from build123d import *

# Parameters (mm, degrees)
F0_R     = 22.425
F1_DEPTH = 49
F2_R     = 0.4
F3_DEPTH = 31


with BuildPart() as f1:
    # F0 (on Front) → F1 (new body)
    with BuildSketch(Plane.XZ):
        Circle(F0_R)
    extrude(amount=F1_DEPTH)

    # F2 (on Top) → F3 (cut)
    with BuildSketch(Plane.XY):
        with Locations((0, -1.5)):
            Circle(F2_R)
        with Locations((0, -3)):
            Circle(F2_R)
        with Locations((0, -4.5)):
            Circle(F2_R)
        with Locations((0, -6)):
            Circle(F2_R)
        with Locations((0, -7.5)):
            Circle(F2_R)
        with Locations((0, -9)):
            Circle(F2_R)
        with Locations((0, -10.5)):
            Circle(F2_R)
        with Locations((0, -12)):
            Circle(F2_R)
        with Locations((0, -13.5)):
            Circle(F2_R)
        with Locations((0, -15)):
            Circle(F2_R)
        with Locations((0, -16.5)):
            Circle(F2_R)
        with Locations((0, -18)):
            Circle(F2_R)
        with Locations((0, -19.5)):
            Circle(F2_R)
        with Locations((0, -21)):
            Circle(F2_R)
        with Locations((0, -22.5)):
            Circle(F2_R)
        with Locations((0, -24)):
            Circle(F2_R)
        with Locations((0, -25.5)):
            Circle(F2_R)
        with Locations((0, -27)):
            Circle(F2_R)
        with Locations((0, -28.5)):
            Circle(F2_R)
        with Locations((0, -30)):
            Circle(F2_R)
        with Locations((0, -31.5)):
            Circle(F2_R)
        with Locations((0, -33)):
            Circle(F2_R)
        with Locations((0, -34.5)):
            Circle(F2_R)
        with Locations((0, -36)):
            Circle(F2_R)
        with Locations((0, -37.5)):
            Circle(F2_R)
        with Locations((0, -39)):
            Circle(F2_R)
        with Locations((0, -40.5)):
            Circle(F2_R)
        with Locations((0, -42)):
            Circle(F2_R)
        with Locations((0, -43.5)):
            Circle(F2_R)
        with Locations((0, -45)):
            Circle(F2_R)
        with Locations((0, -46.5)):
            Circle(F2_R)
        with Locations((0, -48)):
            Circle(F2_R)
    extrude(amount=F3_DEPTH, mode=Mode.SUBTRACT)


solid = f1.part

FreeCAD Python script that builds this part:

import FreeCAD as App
import Part
import Sketcher

doc = App.newDocument("Part")
body = doc.addObject("PartDesign::Body", "Body")

sketch1 = body.newObject("Sketcher::SketchObject", "Sketch")
sketch1.AttachmentSupport = (doc.getObject("XZ_Plane"), [""])
sketch1.MapMode = "FlatFace"
sketch1.addGeometry(Part.Circle(App.Vector(0, 0, 0), App.Vector(0, 0, 1), 22), False)
sketch1.addConstraint(Sketcher.Constraint("Coincident", 0, 3, -1, 1))
sketch1.addConstraint(Sketcher.Constraint("Diameter", 0, 44.85))
pad1 = body.newObject("PartDesign::Pad", "Pad")
pad1.Profile = sketch1
pad1.Length = 49

sketch2 = body.newObject("Sketcher::SketchObject", "Sketch001")
sketch2.AttachmentSupport = (doc.getObject("XY_Plane"), [""])
sketch2.MapMode = "FlatFace"
sketch2.addGeometry(Part.Circle(App.Vector(0, -1.5, 0), App.Vector(0, 0, 1), 0.4), False)
sketch2.addGeometry(Part.Circle(App.Vector(0, -3, 0), App.Vector(0, 0, 1), 0.4), False)
sketch2.addGeometry(Part.Circle(App.Vector(0, -4.5, 0), App.Vector(0, 0, 1), 0.4), False)
sketch2.addGeometry(Part.Circle(App.Vector(0, -6, 0), App.Vector(0, 0, 1), 0.4), False)
sketch2.addGeometry(Part.Circle(App.Vector(0, -7.5, 0), App.Vector(0, 0, 1), 0.4), False)
sketch2.addGeometry(Part.Circle(App.Vector(0, -9, 0), App.Vector(0, 0, 1), 0.4), False)
sketch2.addGeometry(Part.Circle(App.Vector(0, -10.5, 0), App.Vector(0, 0, 1), 0.4), False)
sketch2.addGeometry(Part.Circle(App.Vector(0, -12, 0), App.Vector(0, 0, 1), 0.4), False)
sketch2.addGeometry(Part.Circle(App.Vector(0, -13.5, 0), App.Vector(0, 0, 1), 0.4), False)
sketch2.addGeometry(Part.Circle(App.Vector(0, -15, 0), App.Vector(0, 0, 1), 0.4), False)
sketch2.addGeometry(Part.Circle(App.Vector(0, -16.5, 0), App.Vector(0, 0, 1), 0.4), False)
sketch2.addGeometry(Part.Circle(App.Vector(0, -18, 0), App.Vector(0, 0, 1), 0.4), False)
sketch2.addGeometry(Part.Circle(App.Vector(0, -19.5, 0), App.Vector(0, 0, 1), 0.4), False)
sketch2.addGeometry(Part.Circle(App.Vector(0, -21, 0), App.Vector(0, 0, 1), 0.4), False)
sketch2.addGeometry(Part.Circle(App.Vector(0, -22.5, 0), App.Vector(0, 0, 1), 0.4), False)
sketch2.addGeometry(Part.Circle(App.Vector(0, -24, 0), App.Vector(0, 0, 1), 0.4), False)
sketch2.addGeometry(Part.Circle(App.Vector(0, -25.5, 0), App.Vector(0, 0, 1), 0.4), False)
sketch2.addGeometry(Part.Circle(App.Vector(0, -27, 0), App.Vector(0, 0, 1), 0.4), False)
sketch2.addGeometry(Part.Circle(App.Vector(0, -28.5, 0), App.Vector(0, 0, 1), 0.4), False)
sketch2.addGeometry(Part.Circle(App.Vector(0, -30, 0), App.Vector(0, 0, 1), 0.4), False)
sketch2.addGeometry(Part.Circle(App.Vector(0, -31.5, 0), App.Vector(0, 0, 1), 0.4), False)
sketch2.addGeometry(Part.Circle(App.Vector(0, -33, 0), App.Vector(0, 0, 1), 0.4), False)
sketch2.addGeometry(Part.Circle(App.Vector(0, -34.5, 0), App.Vector(0, 0, 1), 0.4), False)
sketch2.addGeometry(Part.Circle(App.Vector(0, -36, 0), App.Vector(0, 0, 1), 0.4), False)
sketch2.addGeometry(Part.Circle(App.Vector(0, -37.5, 0), App.Vector(0, 0, 1), 0.4), False)
sketch2.addGeometry(Part.Circle(App.Vector(0, -39, 0), App.Vector(0, 0, 1), 0.4), False)
sketch2.addGeometry(Part.Circle(App.Vector(0, -40.5, 0), App.Vector(0, 0, 1), 0.4), False)
sketch2.addGeometry(Part.Circle(App.Vector(0, -42, 0), App.Vector(0, 0, 1), 0.4), False)
sketch2.addGeometry(Part.Circle(App.Vector(0, -43.5, 0), App.Vector(0, 0, 1), 0.4), False)
sketch2.addGeometry(Part.Circle(App.Vector(0, -45, 0), App.Vector(0, 0, 1), 0.4), False)
sketch2.addGeometry(Part.Circle(App.Vector(0, -46.5, 0), App.Vector(0, 0, 1), 0.4), False)
sketch2.addGeometry(Part.Circle(App.Vector(0, -48, 0), App.Vector(0, 0, 1), 0.4), False)
sketch2.addConstraint(Sketcher.Constraint("Equal", 0, 1))
sketch2.addConstraint(Sketcher.Constraint("Equal", 1, 2))
sketch2.addConstraint(Sketcher.Constraint("Equal", 2, 3))
sketch2.addConstraint(Sketcher.Constraint("Equal", 3, 4))
sketch2.addConstraint(Sketcher.Constraint("Equal", 4, 5))
sketch2.addConstraint(Sketcher.Constraint("Equal", 5, 6))
sketch2.addConstraint(Sketcher.Constraint("Equal", 6, 7))
sketch2.addConstraint(Sketcher.Constraint("Equal", 7, 8))
sketch2.addConstraint(Sketcher.Constraint("Equal", 8, 9))
sketch2.addConstraint(Sketcher.Constraint("Equal", 9, 10))
sketch2.addConstraint(Sketcher.Constraint("Equal", 10, 11))
sketch2.addConstraint(Sketcher.Constraint("Equal", 11, 12))
sketch2.addConstraint(Sketcher.Constraint("Equal", 12, 13))
sketch2.addConstraint(Sketcher.Constraint("Equal", 13, 14))
sketch2.addConstraint(Sketcher.Constraint("Equal", 14, 15))
sketch2.addConstraint(Sketcher.Constraint("Equal", 15, 16))
sketch2.addConstraint(Sketcher.Constraint("Equal", 16, 17))
sketch2.addConstraint(Sketcher.Constraint("Equal", 17, 18))
sketch2.addConstraint(Sketcher.Constraint("Equal", 18, 19))
sketch2.addConstraint(Sketcher.Constraint("Equal", 19, 20))
sketch2.addConstraint(Sketcher.Constraint("Equal", 20, 21))
sketch2.addConstraint(Sketcher.Constraint("Equal", 21, 22))
sketch2.addConstraint(Sketcher.Constraint("Equal", 22, 23))
sketch2.addConstraint(Sketcher.Constraint("Equal", 23, 24))
sketch2.addConstraint(Sketcher.Constraint("Equal", 24, 25))
sketch2.addConstraint(Sketcher.Constraint("Equal", 25, 26))
sketch2.addConstraint(Sketcher.Constraint("Equal", 26, 27))
sketch2.addConstraint(Sketcher.Constraint("Equal", 27, 28))
sketch2.addConstraint(Sketcher.Constraint("Equal", 28, 29))
sketch2.addConstraint(Sketcher.Constraint("Equal", 29, 30))
sketch2.addConstraint(Sketcher.Constraint("Equal", 30, 31))
sketch2.addConstraint(Sketcher.Constraint("PointOnObject", 0, 3, -2))
sketch2.addConstraint(Sketcher.Constraint("PointOnObject", 1, 3, -2))
sketch2.addConstraint(Sketcher.Constraint("PointOnObject", 2, 3, -2))
sketch2.addConstraint(Sketcher.Constraint("PointOnObject", 3, 3, -2))
sketch2.addConstraint(Sketcher.Constraint("PointOnObject", 4, 3, -2))
sketch2.addConstraint(Sketcher.Constraint("PointOnObject", 5, 3, -2))
sketch2.addConstraint(Sketcher.Constraint("PointOnObject", 6, 3, -2))
sketch2.addConstraint(Sketcher.Constraint("PointOnObject", 7, 3, -2))
sketch2.addConstraint(Sketcher.Constraint("PointOnObject", 8, 3, -2))
sketch2.addConstraint(Sketcher.Constraint("PointOnObject", 9, 3, -2))
sketch2.addConstraint(Sketcher.Constraint("PointOnObject", 10, 3, -2))
sketch2.addConstraint(Sketcher.Constraint("PointOnObject", 11, 3, -2))
sketch2.addConstraint(Sketcher.Constraint("PointOnObject", 12, 3, -2))
sketch2.addConstraint(Sketcher.Constraint("PointOnObject", 13, 3, -2))
sketch2.addConstraint(Sketcher.Constraint("PointOnObject", 14, 3, -2))
sketch2.addConstraint(Sketcher.Constraint("PointOnObject", 15, 3, -2))
sketch2.addConstraint(Sketcher.Constraint("PointOnObject", 16, 3, -2))
sketch2.addConstraint(Sketcher.Constraint("PointOnObject", 17, 3, -2))
sketch2.addConstraint(Sketcher.Constraint("PointOnObject", 18, 3, -2))
sketch2.addConstraint(Sketcher.Constraint("PointOnObject", 19, 3, -2))
sketch2.addConstraint(Sketcher.Constraint("PointOnObject", 20, 3, -2))
sketch2.addConstraint(Sketcher.Constraint("PointOnObject", 21, 3, -2))
sketch2.addConstraint(Sketcher.Constraint("PointOnObject", 22, 3, -2))
sketch2.addConstraint(Sketcher.Constraint("PointOnObject", 23, 3, -2))
sketch2.addConstraint(Sketcher.Constraint("PointOnObject", 24, 3, -2))
sketch2.addConstraint(Sketcher.Constraint("PointOnObject", 25, 3, -2))
sketch2.addConstraint(Sketcher.Constraint("PointOnObject", 26, 3, -2))
sketch2.addConstraint(Sketcher.Constraint("PointOnObject", 27, 3, -2))
sketch2.addConstraint(Sketcher.Constraint("PointOnObject", 28, 3, -2))
sketch2.addConstraint(Sketcher.Constraint("PointOnObject", 29, 3, -2))
sketch2.addConstraint(Sketcher.Constraint("PointOnObject", 30, 3, -2))
sketch2.addConstraint(Sketcher.Constraint("PointOnObject", 31, 3, -2))
sketch2.addConstraint(Sketcher.Constraint("Diameter", 0, 0.8))
sketch2.addConstraint(Sketcher.Constraint("DistanceY", 1, 3, -1, 1, 3.0))
sketch2.addConstraint(Sketcher.Constraint("DistanceY", 3, 3, -1, 1, 6.0))
sketch2.addConstraint(Sketcher.Constraint("DistanceY", 5, 3, -1, 1, 9.0))
sketch2.addConstraint(Sketcher.Constraint("DistanceY", 7, 3, -1, 1, 12.0))
sketch2.addConstraint(Sketcher.Constraint("DistanceY", 9, 3, -1, 1, 15.0))
sketch2.addConstraint(Sketcher.Constraint("DistanceY", 11, 3, -1, 1, 18.0))
sketch2.addConstraint(Sketcher.Constraint("DistanceY", 13, 3, -1, 1, 21.0))
sketch2.addConstraint(Sketcher.Constraint("DistanceY", 15, 3, -1, 1, 24.0))
sketch2.addConstraint(Sketcher.Constraint("DistanceY", 17, 3, -1, 1, 27.0))
sketch2.addConstraint(Sketcher.Constraint("DistanceY", 19, 3, -1, 1, 30.0))
sketch2.addConstraint(Sketcher.Constraint("DistanceY", 21, 3, -1, 1, 33.0))
sketch2.addConstraint(Sketcher.Constraint("DistanceY", 23, 3, -1, 1, 36.0))
sketch2.addConstraint(Sketcher.Constraint("DistanceY", 25, 3, -1, 1, 39.0))
sketch2.addConstraint(Sketcher.Constraint("DistanceY", 27, 3, -1, 1, 42.0))
sketch2.addConstraint(Sketcher.Constraint("DistanceY", 29, 3, -1, 1, 45.0))
sketch2.addConstraint(Sketcher.Constraint("DistanceY", 31, 3, -1, 1, 48.0))
sketch2.addConstraint(Sketcher.Constraint("DistanceY", 2, 3, 0, 3, 3.0))
sketch2.addConstraint(Sketcher.Constraint("DistanceY", 4, 3, 2, 3, 3.0))
sketch2.addConstraint(Sketcher.Constraint("DistanceY", 6, 3, 4, 3, 3.0))
sketch2.addConstraint(Sketcher.Constraint("DistanceY", 8, 3, 6, 3, 3.0))
sketch2.addConstraint(Sketcher.Constraint("DistanceY", 10, 3, 8, 3, 3.0))
sketch2.addConstraint(Sketcher.Constraint("DistanceY", 12, 3, 10, 3, 3.0))
sketch2.addConstraint(Sketcher.Constraint("DistanceY", 14, 3, 12, 3, 3.0))
sketch2.addConstraint(Sketcher.Constraint("DistanceY", 16, 3, 14, 3, 3.0))
sketch2.addConstraint(Sketcher.Constraint("DistanceY", 18, 3, 16, 3, 3.0))
sketch2.addConstraint(Sketcher.Constraint("DistanceY", 20, 3, 18, 3, 3.0))
sketch2.addConstraint(Sketcher.Constraint("DistanceY", 22, 3, 20, 3, 3.0))
sketch2.addConstraint(Sketcher.Constraint("DistanceY", 24, 3, 22, 3, 3.0))
sketch2.addConstraint(Sketcher.Constraint("DistanceY", 26, 3, 24, 3, 3.0))
sketch2.addConstraint(Sketcher.Constraint("DistanceY", 28, 3, 26, 3, 3.0))
sketch2.addConstraint(Sketcher.Constraint("DistanceY", 30, 3, 28, 3, 3.0))
sketch2.addConstraint(Sketcher.Constraint("DistanceY", 0, 3, -1, 1, 1.5))
pocket1 = body.newObject("PartDesign::Pocket", "Pocket")
pocket1.Profile = sketch2
pocket1.Length = 31
pocket1.Reversed = True

doc.recompute()
